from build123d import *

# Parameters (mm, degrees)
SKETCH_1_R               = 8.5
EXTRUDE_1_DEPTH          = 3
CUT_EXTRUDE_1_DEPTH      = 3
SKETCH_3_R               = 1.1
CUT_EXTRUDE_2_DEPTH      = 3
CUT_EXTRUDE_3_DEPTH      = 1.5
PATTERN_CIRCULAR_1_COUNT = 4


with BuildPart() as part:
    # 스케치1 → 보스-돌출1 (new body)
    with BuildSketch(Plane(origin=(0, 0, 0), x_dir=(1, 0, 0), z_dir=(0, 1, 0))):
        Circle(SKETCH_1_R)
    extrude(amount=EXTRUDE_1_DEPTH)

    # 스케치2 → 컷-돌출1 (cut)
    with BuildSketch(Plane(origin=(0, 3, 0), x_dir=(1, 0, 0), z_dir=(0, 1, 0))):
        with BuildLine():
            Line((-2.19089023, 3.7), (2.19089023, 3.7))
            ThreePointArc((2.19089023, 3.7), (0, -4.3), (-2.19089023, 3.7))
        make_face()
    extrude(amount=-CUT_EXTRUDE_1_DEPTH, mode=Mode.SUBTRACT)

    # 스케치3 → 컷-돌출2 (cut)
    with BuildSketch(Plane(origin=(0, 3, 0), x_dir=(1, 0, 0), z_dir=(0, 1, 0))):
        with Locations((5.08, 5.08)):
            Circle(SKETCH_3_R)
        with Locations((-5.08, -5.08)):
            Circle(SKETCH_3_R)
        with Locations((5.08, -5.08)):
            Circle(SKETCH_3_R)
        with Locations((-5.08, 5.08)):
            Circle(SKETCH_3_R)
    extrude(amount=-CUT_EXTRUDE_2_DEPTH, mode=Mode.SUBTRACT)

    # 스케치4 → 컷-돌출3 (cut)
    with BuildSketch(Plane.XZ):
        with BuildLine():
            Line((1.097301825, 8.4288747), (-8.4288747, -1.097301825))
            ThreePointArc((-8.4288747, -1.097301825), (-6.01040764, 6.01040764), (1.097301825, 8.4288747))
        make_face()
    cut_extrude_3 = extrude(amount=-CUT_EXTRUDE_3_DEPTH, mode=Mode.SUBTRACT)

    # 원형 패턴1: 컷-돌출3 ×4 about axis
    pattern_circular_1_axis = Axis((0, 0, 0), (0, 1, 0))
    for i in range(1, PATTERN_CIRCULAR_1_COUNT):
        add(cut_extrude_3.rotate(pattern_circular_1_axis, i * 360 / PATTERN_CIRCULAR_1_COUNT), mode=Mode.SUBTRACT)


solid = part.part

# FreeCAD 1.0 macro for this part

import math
import FreeCAD as App
import Part
import Sketcher
from FreeCAD import Vector
Q = App.Units.Quantity

doc = App.newDocument("Part")
body = doc.addObject("PartDesign::Body", "Body")

# Sketch on XZ plane
sketch1 = doc.addObject("Sketcher::SketchObject", "Sketch")
body.addObject(sketch1)
sketch1.AttachmentSupport = (doc.XZ_Plane, [""])
sketch1.MapMode = "FlatFace"
sketch1.addGeometry(Part.Circle(Vector(0, 0, 0), Vector(0, 0, 1), 8), False)
sketch1.addConstraint([
    Sketcher.Constraint("Coincident", 0, 3, -1, 1),
    Sketcher.Constraint("Diameter", 0, 17.0),
])
pad1 = doc.addObject("PartDesign::Pad", "Pad")
body.addObject(pad1)
pad1.Profile = sketch1
pad1.Length = 3
pad1.Reversed = True

# Sketch on XZ plane
sketch2 = doc.addObject("Sketcher::SketchObject", "Sketch001")
body.addObject(sketch2)
sketch2.AttachmentSupport = (doc.XZ_Plane, [""])
sketch2.MapMode = "FlatFace"
sketch2.AttachmentOffset = App.Placement(Vector(0, 0, -3), App.Rotation())
sketch2.addGeometry([
    Part.LineSegment(Vector(2.2, -3.7, 0), Vector(-2.2, -3.7, 0)),
    Part.ArcOfCircle(Part.Circle(Vector(0, 0, 0), Vector(0, 0, 1), 4.3), math.radians(-59), math.radians(239)),
], False)
sketch2.addConstraint([
    Sketcher.Constraint("Coincident", 0, 1, 1, 1),
    Sketcher.Constraint("Coincident", 1, 2, 0, 2),
    Sketcher.Constraint("Horizontal", 0),
    Sketcher.Constraint("Coincident", 1, 3, -1, 1),
    Sketcher.Constraint("Radius", 1, 4.3),
    Sketcher.Constraint("DistanceY", 0, 1, -1, 1, 3.7),
])
pocket1 = doc.addObject("PartDesign::Pocket", "Pocket")
body.addObject(pocket1)
pocket1.Profile = sketch2
pocket1.Length = 3
pocket1.Reversed = True

# Sketch on XZ plane
sketch3 = doc.addObject("Sketcher::SketchObject", "Sketch002")
body.addObject(sketch3)
sketch3.AttachmentSupport = (doc.XZ_Plane, [""])
sketch3.MapMode = "FlatFace"
sketch3.AttachmentOffset = App.Placement(Vector(0, 0, -3), App.Rotation())
sketch3.addGeometry([
    Part.Circle(Vector(5.1, -5.1, 0), Vector(0, 0, 1), 1.1),
    Part.Circle(Vector(-5.1, 5.1, 0), Vector(0, 0, 1), 1.1),
    Part.Circle(Vector(5.1, 5.1, 0), Vector(0, 0, 1), 1.1),
    Part.Circle(Vector(-5.1, -5.1, 0), Vector(0, 0, 1), 1.1),
], False)
sketch3.addConstraint([
    Sketcher.Constraint("Equal", 0, 1),
    Sketcher.Constraint("Equal", 1, 2),
    Sketcher.Constraint("Equal", 2, 3),
    Sketcher.Constraint("Symmetric", 0, 3, 1, 3, -1, 1),
    Sketcher.Constraint("Symmetric", 2, 3, 3, 3, -1, 1),
    Sketcher.Constraint("Symmetric", 1, 3, 2, 3, -2),
    Sketcher.Constraint("Diameter", 0, 2.2),
    Sketcher.Constraint("DistanceX", -1, 1, 0, 3, 5.08),
    Sketcher.Constraint("DistanceY", 0, 3, -1, 1, 5.08),
])
pocket2 = doc.addObject("PartDesign::Pocket", "Pocket001")
body.addObject(pocket2)
pocket2.Profile = sketch3
pocket2.Length = 3
pocket2.Reversed = True

# Sketch on XZ plane
sketch4 = doc.addObject("Sketcher::SketchObject", "Sketch003")
body.addObject(sketch4)
sketch4.AttachmentSupport = (doc.XZ_Plane, [""])
sketch4.MapMode = "FlatFace"
sketch4.addGeometry([
    Part.LineSegment(Vector(-8, -1, 0), Vector(1, 8, 0)),
    Part.ArcOfCircle(Part.Circle(Vector(0, 0, 0), Vector(0, 0, 1), 9), math.radians(83), math.radians(187)),
], False)
sketch4.addConstraint([
    Sketcher.Constraint("Coincident", 0, 1, 1, 2),
    Sketcher.Constraint("Coincident", 1, 1, 0, 2),
    Sketcher.Constraint("Coincident", 1, 3, -1, 1),
    Sketcher.Constraint("Radius", 1, 8.5),
    Sketcher.Constraint("Angle", 0, Q("45 deg")),
    Sketcher.Constraint("DistanceY", 0, 1, -1, 1, 1.097302),
])
pocket3 = doc.addObject("PartDesign::Pocket", "Pocket002")
body.addObject(pocket3)
pocket3.Profile = sketch4
pocket3.Length = 1.5
doc.recompute()

polarpattern = doc.addObject("PartDesign::PolarPattern", "PolarPattern")
body.addObject(polarpattern)
polarpattern.Originals = [pocket3]
polarpattern.Axis = (doc.Y_Axis, [""])
polarpattern.Angle = 360
polarpattern.Occurrences = 4
body.Tip = polarpattern

doc.recompute()
